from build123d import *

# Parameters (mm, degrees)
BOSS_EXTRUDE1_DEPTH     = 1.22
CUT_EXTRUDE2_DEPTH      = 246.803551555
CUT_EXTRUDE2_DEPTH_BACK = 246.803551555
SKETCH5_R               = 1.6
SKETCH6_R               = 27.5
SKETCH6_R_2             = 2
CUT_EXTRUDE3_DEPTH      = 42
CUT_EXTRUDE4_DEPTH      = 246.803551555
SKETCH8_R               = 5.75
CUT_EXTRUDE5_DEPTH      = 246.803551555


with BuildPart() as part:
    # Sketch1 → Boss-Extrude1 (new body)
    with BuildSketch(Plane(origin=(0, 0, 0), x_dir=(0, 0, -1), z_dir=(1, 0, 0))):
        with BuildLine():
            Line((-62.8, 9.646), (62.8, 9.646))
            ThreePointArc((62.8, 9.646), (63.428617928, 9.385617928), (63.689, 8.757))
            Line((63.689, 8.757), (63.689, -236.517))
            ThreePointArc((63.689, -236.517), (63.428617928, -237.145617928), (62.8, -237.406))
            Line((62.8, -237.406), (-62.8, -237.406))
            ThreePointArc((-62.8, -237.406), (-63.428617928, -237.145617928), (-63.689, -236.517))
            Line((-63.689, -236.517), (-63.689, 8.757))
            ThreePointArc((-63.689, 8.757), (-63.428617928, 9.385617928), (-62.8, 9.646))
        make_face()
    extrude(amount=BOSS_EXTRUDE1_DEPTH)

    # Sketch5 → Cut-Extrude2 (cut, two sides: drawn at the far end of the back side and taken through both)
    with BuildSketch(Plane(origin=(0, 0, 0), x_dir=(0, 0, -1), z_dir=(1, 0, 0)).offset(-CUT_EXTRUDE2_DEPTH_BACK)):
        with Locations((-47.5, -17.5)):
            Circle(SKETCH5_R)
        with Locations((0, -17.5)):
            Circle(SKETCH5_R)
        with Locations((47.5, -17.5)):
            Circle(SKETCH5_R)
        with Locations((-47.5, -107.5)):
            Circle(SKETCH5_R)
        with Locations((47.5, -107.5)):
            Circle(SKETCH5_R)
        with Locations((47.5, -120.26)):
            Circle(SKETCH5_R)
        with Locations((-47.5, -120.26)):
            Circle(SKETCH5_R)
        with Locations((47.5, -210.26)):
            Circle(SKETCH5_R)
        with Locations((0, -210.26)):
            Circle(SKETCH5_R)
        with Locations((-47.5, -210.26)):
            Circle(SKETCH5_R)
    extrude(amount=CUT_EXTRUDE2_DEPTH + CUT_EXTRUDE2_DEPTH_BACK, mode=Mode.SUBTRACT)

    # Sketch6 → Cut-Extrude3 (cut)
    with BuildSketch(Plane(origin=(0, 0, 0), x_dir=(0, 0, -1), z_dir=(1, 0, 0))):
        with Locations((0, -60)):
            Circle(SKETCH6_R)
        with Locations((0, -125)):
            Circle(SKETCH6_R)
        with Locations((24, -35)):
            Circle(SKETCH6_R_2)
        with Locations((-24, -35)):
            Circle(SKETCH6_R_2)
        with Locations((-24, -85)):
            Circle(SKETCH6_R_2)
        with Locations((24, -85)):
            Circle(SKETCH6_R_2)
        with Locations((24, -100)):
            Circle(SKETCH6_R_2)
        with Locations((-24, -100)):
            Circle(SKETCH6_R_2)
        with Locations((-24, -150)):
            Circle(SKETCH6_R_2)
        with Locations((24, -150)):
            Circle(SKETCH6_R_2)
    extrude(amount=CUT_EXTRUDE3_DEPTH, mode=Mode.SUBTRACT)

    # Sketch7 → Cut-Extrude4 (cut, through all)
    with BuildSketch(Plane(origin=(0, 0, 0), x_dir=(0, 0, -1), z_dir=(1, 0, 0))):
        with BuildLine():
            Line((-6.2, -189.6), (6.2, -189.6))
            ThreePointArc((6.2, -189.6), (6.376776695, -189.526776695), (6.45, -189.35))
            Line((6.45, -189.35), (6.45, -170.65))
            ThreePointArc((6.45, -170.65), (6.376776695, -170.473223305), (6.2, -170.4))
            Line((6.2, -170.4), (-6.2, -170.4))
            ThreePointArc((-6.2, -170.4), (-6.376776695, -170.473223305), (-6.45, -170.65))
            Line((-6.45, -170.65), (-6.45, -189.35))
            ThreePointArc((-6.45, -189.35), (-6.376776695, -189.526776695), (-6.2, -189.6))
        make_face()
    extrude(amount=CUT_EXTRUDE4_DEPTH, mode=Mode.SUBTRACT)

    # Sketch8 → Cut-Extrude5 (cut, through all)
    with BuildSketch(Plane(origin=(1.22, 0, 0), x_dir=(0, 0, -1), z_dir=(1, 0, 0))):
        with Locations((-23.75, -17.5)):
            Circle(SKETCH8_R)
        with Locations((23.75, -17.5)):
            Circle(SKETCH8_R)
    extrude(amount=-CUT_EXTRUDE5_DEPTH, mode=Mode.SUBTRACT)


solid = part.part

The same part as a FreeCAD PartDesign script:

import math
import FreeCAD as App
import Part
import Sketcher

V = App.Vector
Q = App.Units.Quantity

doc = App.newDocument("Part")
params = doc.addObject("Spreadsheet::Sheet", "Params")
for row, (alias, value) in enumerate([
    ("sketch1_height", "125.6 mm"),
    ("pad1_length", "1.22 mm"),
    ("sketch2_diameter", "3.2 mm"),
    ("sketch3_diameter", "55 mm"),
    ("sketch3_diameter2", "4 mm"),
    ("pocket2_length", "42 mm"),
    ("sketch4_radius", "0.25 mm"),
    ("sketch4_width", "18.7 mm"),
    ("sketch4_height", "12.4 mm"),
    ("sketch5_diameter", "11.5 mm"),
], start=1):
    params.set(f"A{row}", alias)
    params.set(f"B{row}", "=" + value)
    params.setAlias(f"B{row}", alias)

body = doc.addObject("PartDesign::Body", "Body")

# Sketch on YZ plane
sketch1 = doc.addObject("Sketcher::SketchObject", "Sketch")
body.addObject(sketch1)
sketch1.AttachmentSupport = (doc.YZ_Plane, [""])
sketch1.MapMode = "FlatFace"
sketch1.addGeometry(Part.LineSegment(V(9.646, -62.8, 0), V(9.646, 62.8, 0)), False)
sketch1.addGeometry(Part.ArcOfCircle(Part.Circle(V(8.757, 62.8, 0), V(0, 0, 1), 0.889), math.radians(0), math.radians(90)), False)
sketch1.addGeometry(Part.LineSegment(V(8.757, 63.689, 0), V(-236.517, 63.689, 0)), False)
sketch1.addGeometry(Part.ArcOfCircle(Part.Circle(V(-236.517, 62.8, 0), V(0, 0, 1), 0.889), math.radians(90), math.radians(180)), False)
sketch1.addGeometry(Part.LineSegment(V(-237.406, 62.8, 0), V(-237.406, -62.8, 0)), False)
sketch1.addGeometry(Part.ArcOfCircle(Part.Circle(V(-236.517, -62.8, 0), V(0, 0, 1), 0.889), math.radians(-180), math.radians(-90)), False)
sketch1.addGeometry(Part.LineSegment(V(-236.517, -63.689, 0), V(8.757, -63.689, 0)), False)
sketch1.addGeometry(Part.ArcOfCircle(Part.Circle(V(8.757, -62.8, 0), V(0, 0, 1), 0.889), math.radians(-90), math.radians(0)), False)
sketch1.addConstraint(Sketcher.Constraint("Tangent", 0, 2, 1, 1))
sketch1.addConstraint(Sketcher.Constraint("Tangent", 1, 2, 2, 1))
sketch1.addConstraint(Sketcher.Constraint("Tangent", 2, 2, 3, 1))
sketch1.addConstraint(Sketcher.Constraint("Tangent", 3, 2, 4, 1))
sketch1.addConstraint(Sketcher.Constraint("Tangent", 4, 2, 5, 1))
sketch1.addConstraint(Sketcher.Constraint("Tangent", 5, 2, 6, 1))
sketch1.addConstraint(Sketcher.Constraint("Tangent", 6, 2, 7, 1))
sketch1.addConstraint(Sketcher.Constraint("Tangent", 7, 2, 0, 1))
sketch1.addConstraint(Sketcher.Constraint("Vertical", 0))
sketch1.addConstraint(Sketcher.Constraint("Horizontal", 2))
sketch1.addConstraint(Sketcher.Constraint("Vertical", 4))
sketch1.addConstraint(Sketcher.Constraint("Horizontal", 6))
sketch1.addConstraint(Sketcher.Constraint("Equal", 1, 3))
sketch1.addConstraint(Sketcher.Constraint("Equal", 3, 5))
sketch1.addConstraint(Sketcher.Constraint("Equal", 5, 7))
sketch1.addConstraint(Sketcher.Constraint("DistanceY", 0, 1, 0, 2, Q("125.6 mm")))
sketch1.addConstraint(Sketcher.Constraint("Radius", 1, Q("0.889 mm")))
sketch1.addConstraint(Sketcher.Constraint("DistanceY", -1, 1, 1, 3, Q("62.8 mm")))
sketch1.addConstraint(Sketcher.Constraint("DistanceX", 2, 2, 2, 1, Q("245.274 mm")))
sketch1.addConstraint(Sketcher.Constraint("DistanceX", -1, 1, 1, 3, Q("8.757 mm")))
sketch1.setExpression("Constraints[15]", "Params.sketch1_height")
pad1 = doc.addObject("PartDesign::Pad", "Pad")
body.addObject(pad1)
pad1.Profile = sketch1
pad1.setExpression("Length", "Params.pad1_length")

# Sketch on YZ plane
sketch2 = doc.addObject("Sketcher::SketchObject", "Sketch001")
body.addObject(sketch2)
sketch2.AttachmentSupport = (doc.YZ_Plane, [""])
sketch2.MapMode = "FlatFace"
sketch2.addGeometry(Part.Circle(V(-17.5, 47.5, 0), V(0, 0, 1), 1.6), False)
sketch2.addGeometry(Part.Circle(V(-17.5, 0, 0), V(0, 0, 1), 1.6), False)
sketch2.addGeometry(Part.Circle(V(-17.5, -47.5, 0), V(0, 0, 1), 1.6), False)
sketch2.addGeometry(Part.Circle(V(-107.5, 47.5, 0), V(0, 0, 1), 1.6), False)
sketch2.addGeometry(Part.Circle(V(-107.5, -47.5, 0), V(0, 0, 1), 1.6), False)
sketch2.addGeometry(Part.Circle(V(-120.26, -47.5, 0), V(0, 0, 1), 1.6), False)
sketch2.addGeometry(Part.Circle(V(-120.26, 47.5, 0), V(0, 0, 1), 1.6), False)
sketch2.addGeometry(Part.Circle(V(-210.26, -47.5, 0), V(0, 0, 1), 1.6), False)
sketch2.addGeometry(Part.Circle(V(-210.26, 0, 0), V(0, 0, 1), 1.6), False)
sketch2.addGeometry(Part.Circle(V(-210.26, 47.5, 0), V(0, 0, 1), 1.6), False)
sketch2.addConstraint(Sketcher.Constraint("Equal", 0, 1))
sketch2.addConstraint(Sketcher.Constraint("Equal", 1, 2))
sketch2.addConstraint(Sketcher.Constraint("Equal", 2, 3))
sketch2.addConstraint(Sketcher.Constraint("Equal", 3, 4))
sketch2.addConstraint(Sketcher.Constraint("Equal", 4, 5))
sketch2.addConstraint(Sketcher.Constraint("Equal", 5, 6))
sketch2.addConstraint(Sketcher.Constraint("Equal", 6, 7))
sketch2.addConstraint(Sketcher.Constraint("Equal", 7, 8))
sketch2.addConstraint(Sketcher.Constraint("Equal", 8, 9))
sketch2.addConstraint(Sketcher.Constraint("Symmetric", 0, 3, 2, 3, -1))
sketch2.addConstraint(Sketcher.Constraint("Symmetric", 3, 3, 4, 3, -1))
sketch2.addConstraint(Sketcher.Constraint("Symmetric", 5, 3, 6, 3, -1))
sketch2.addConstraint(Sketcher.Constraint("Symmetric", 7, 3, 9, 3, -1))
sketch2.addConstraint(Sketcher.Constraint("PointOnObject", 1, 3, -1))
sketch2.addConstraint(Sketcher.Constraint("PointOnObject", 8, 3, -1))
sketch2.addConstraint(Sketcher.Constraint("Horizontal", 0, 3, 3, 3))
sketch2.addConstraint(Sketcher.Constraint("Horizontal", 4, 3, 5, 3))
sketch2.addConstraint(Sketcher.Constraint("Horizontal", 5, 3, 7, 3))
sketch2.addConstraint(Sketcher.Constraint("Vertical", 0, 3, 1, 3))
sketch2.addConstraint(Sketcher.Constraint("Vertical", 7, 3, 8, 3))
sketch2.addConstraint(Sketcher.Constraint("Diameter", 0, Q("3.2 mm")))
sketch2.addConstraint(Sketcher.Constraint("DistanceY", 2, 3, 0, 3, Q("95 mm")))
sketch2.addConstraint(Sketcher.Constraint("DistanceX", 3, 3, 0, 3, Q("90 mm")))
sketch2.addConstraint(Sketcher.Constraint("DistanceX", 7, 3, 5, 3, Q("90 mm")))
sketch2.addConstraint(Sketcher.Constraint("DistanceX", 0, 3, -1, 1, Q("17.5 mm")))
sketch2.addConstraint(Sketcher.Constraint("DistanceX", 5, 3, -1, 1, Q("120.26 mm")))
sketch2.setExpression("Constraints[20]", "Params.sketch2_diameter")
pocket1 = doc.addObject("PartDesign::Pocket", "Pocket")
body.addObject(pocket1)
pocket1.Profile = sketch2
pocket1.Type = "ThroughAll"
pocket1.Midplane = True

# Sketch on YZ plane
sketch3 = doc.addObject("Sketcher::SketchObject", "Sketch002")
body.addObject(sketch3)
sketch3.AttachmentSupport = (doc.YZ_Plane, [""])
sketch3.MapMode = "FlatFace"
sketch3.addGeometry(Part.Circle(V(-60, 0, 0), V(0, 0, 1), 27.5), False)
sketch3.addGeometry(Part.Circle(V(-125, 0, 0), V(0, 0, 1), 27.5), False)
sketch3.addGeometry(Part.Circle(V(-35, -24, 0), V(0, 0, 1), 2), False)
sketch3.addGeometry(Part.Circle(V(-35, 24, 0), V(0, 0, 1), 2), False)
sketch3.addGeometry(Part.Circle(V(-85, 24, 0), V(0, 0, 1), 2), False)
sketch3.addGeometry(Part.Circle(V(-85, -24, 0), V(0, 0, 1), 2), False)
sketch3.addGeometry(Part.Circle(V(-100, -24, 0), V(0, 0, 1), 2), False)
sketch3.addGeometry(Part.Circle(V(-100, 24, 0), V(0, 0, 1), 2), False)
sketch3.addGeometry(Part.Circle(V(-150, 24, 0), V(0, 0, 1), 2), False)
sketch3.addGeometry(Part.Circle(V(-150, -24, 0), V(0, 0, 1), 2), False)
sketch3.addConstraint(Sketcher.Constraint("Equal", 0, 1))
sketch3.addConstraint(Sketcher.Constraint("Equal", 2, 3))
sketch3.addConstraint(Sketcher.Constraint("Equal", 3, 4))
sketch3.addConstraint(Sketcher.Constraint("Equal", 4, 5))
sketch3.addConstraint(Sketcher.Constraint("Equal", 5, 6))
sketch3.addConstraint(Sketcher.Constraint("Equal", 6, 7))
sketch3.addConstraint(Sketcher.Constraint("Equal", 7, 8))
sketch3.addConstraint(Sketcher.Constraint("Equal", 8, 9))
sketch3.addConstraint(Sketcher.Constraint("Symmetric", 2, 3, 3, 3, -1))
sketch3.addConstraint(Sketcher.Constraint("Symmetric", 4, 3, 5, 3, -1))
sketch3.addConstraint(Sketcher.Constraint("Symmetric", 6, 3, 7, 3, -1))
sketch3.addConstraint(Sketcher.Constraint("Symmetric", 8, 3, 9, 3, -1))
sketch3.addConstraint(Sketcher.Constraint("PointOnObject", 0, 3, -1))
sketch3.addConstraint(Sketcher.Constraint("PointOnObject", 1, 3, -1))
sketch3.addConstraint(Sketcher.Constraint("Horizontal", 3, 3, 4, 3))
sketch3.addConstraint(Sketcher.Constraint("Horizontal", 5, 3, 6, 3))
sketch3.addConstraint(Sketcher.Constraint("Horizontal", 7, 3, 8, 3))
sketch3.addConstraint(Sketcher.Constraint("Diameter", 0, Q("55 mm")))
sketch3.addConstraint(Sketcher.Constraint("Diameter", 2, Q("4 mm")))
sketch3.addConstraint(Sketcher.Constraint("DistanceX", 0, 3, -1, 1, Q("60 mm")))
sketch3.addConstraint(Sketcher.Constraint("DistanceX", 1, 3, -1, 1, Q("125 mm")))
sketch3.addConstraint(Sketcher.Constraint("DistanceX", 2, 3, -1, 1, Q("35 mm")))
sketch3.addConstraint(Sketcher.Constraint("DistanceY", 2, 3, -1, 1, Q("24 mm")))
sketch3.addConstraint(Sketcher.Constraint("DistanceX", 4, 3, -1, 1, Q("85 mm")))
sketch3.addConstraint(Sketcher.Constraint("DistanceX", 6, 3, -1, 1, Q("100 mm")))
sketch3.addConstraint(Sketcher.Constraint("DistanceX", 8, 3, -1, 1, Q("150 mm")))
sketch3.setExpression("Constraints[17]", "Params.sketch3_diameter")
sketch3.setExpression("Constraints[18]", "Params.sketch3_diameter2")
pocket2 = doc.addObject("PartDesign::Pocket", "Pocket001")
body.addObject(pocket2)
pocket2.Profile = sketch3
pocket2.setExpression("Length", "Params.pocket2_length")
pocket2.Reversed = True

# Sketch on YZ plane
sketch4 = doc.addObject("Sketcher::SketchObject", "Sketch003")
body.addObject(sketch4)
sketch4.AttachmentSupport = (doc.YZ_Plane, [""])
sketch4.MapMode = "FlatFace"
sketch4.addGeometry(Part.LineSegment(V(-189.6, 6.2, 0), V(-189.6, -6.2, 0)), False)
sketch4.addGeometry(Part.ArcOfCircle(Part.Circle(V(-189.35, -6.2, 0), V(0, 0, 1), 0.25), math.radians(-180), math.radians(-90)), False)
sketch4.addGeometry(Part.LineSegment(V(-189.35, -6.45, 0), V(-170.65, -6.45, 0)), False)
sketch4.addGeometry(Part.ArcOfCircle(Part.Circle(V(-170.65, -6.2, 0), V(0, 0, 1), 0.25), math.radians(-90), math.radians(0)), False)
sketch4.addGeometry(Part.LineSegment(V(-170.4, -6.2, 0), V(-170.4, 6.2, 0)), False)
sketch4.addGeometry(Part.ArcOfCircle(Part.Circle(V(-170.65, 6.2, 0), V(0, 0, 1), 0.25), math.radians(0), math.radians(90)), False)
sketch4.addGeometry(Part.LineSegment(V(-170.65, 6.45, 0), V(-189.35, 6.45, 0)), False)
sketch4.addGeometry(Part.ArcOfCircle(Part.Circle(V(-189.35, 6.2, 0), V(0, 0, 1), 0.25), math.radians(90), math.radians(180)), False)
sketch4.addConstraint(Sketcher.Constraint("Tangent", 0, 2, 1, 1))
sketch4.addConstraint(Sketcher.Constraint("Tangent", 1, 2, 2, 1))
sketch4.addConstraint(Sketcher.Constraint("Tangent", 2, 2, 3, 1))
sketch4.addConstraint(Sketcher.Constraint("Tangent", 3, 2, 4, 1))
sketch4.addConstraint(Sketcher.Constraint("Tangent", 4, 2, 5, 1))
sketch4.addConstraint(Sketcher.Constraint("Tangent", 5, 2, 6, 1))
sketch4.addConstraint(Sketcher.Constraint("Tangent", 6, 2, 7, 1))
sketch4.addConstraint(Sketcher.Constraint("Tangent", 7, 2, 0, 1))
sketch4.addConstraint(Sketcher.Constraint("Vertical", 0))
sketch4.addConstraint(Sketcher.Constraint("Horizontal", 2))
sketch4.addConstraint(Sketcher.Constraint("Vertical", 4))
sketch4.addConstraint(Sketcher.Constraint("Horizontal", 6))
sketch4.addConstraint(Sketcher.Constraint("Equal", 1, 3))
sketch4.addConstraint(Sketcher.Constraint("Equal", 3, 5))
sketch4.addConstraint(Sketcher.Constraint("Equal", 5, 7))
sketch4.addConstraint(Sketcher.Constraint("Radius", 1, Q("0.25 mm")))
sketch4.addConstraint(Sketcher.Constraint("DistanceX", 2, 1, 2, 2, Q("18.7 mm")))
sketch4.addConstraint(Sketcher.Constraint("DistanceY", 0, 2, 0, 1, Q("12.4 mm")))
sketch4.addConstraint(Sketcher.Constraint("DistanceY", 1, 3, -1, 1, Q("6.2 mm")))
sketch4.addConstraint(Sketcher.Constraint("DistanceX", 0, 2, -1, 1, Q("189.6 mm")))
sketch4.setExpression("Constraints[15]", "Params.sketch4_radius")
sketch4.setExpression("Constraints[16]", "Params.sketch4_width")
sketch4.setExpression("Constraints[17]", "Params.sketch4_height")
pocket3 = doc.addObject("PartDesign::Pocket", "Pocket002")
body.addObject(pocket3)
pocket3.Profile = sketch4
pocket3.Type = "ThroughAll"
pocket3.Reversed = True

# Sketch on YZ plane
sketch5 = doc.addObject("Sketcher::SketchObject", "Sketch004")
body.addObject(sketch5)
sketch5.AttachmentSupport = (doc.YZ_Plane, [""])
sketch5.MapMode = "FlatFace"
sketch5.AttachmentOffset = App.Placement(V(0, 0, 1.22), App.Rotation())
sketch5.addGeometry(Part.Circle(V(-17.5, 23.75, 0), V(0, 0, 1), 5.75), False)
sketch5.addGeometry(Part.Circle(V(-17.5, -23.75, 0), V(0, 0, 1), 5.75), False)
sketch5.addConstraint(Sketcher.Constraint("Equal", 0, 1))
sketch5.addConstraint(Sketcher.Constraint("Symmetric", 0, 3, 1, 3, -1))
sketch5.addConstraint(Sketcher.Constraint("Diameter", 0, Q("11.5 mm")))
sketch5.addConstraint(Sketcher.Constraint("DistanceX", 0, 3, -1, 1, Q("17.5 mm")))
sketch5.addConstraint(Sketcher.Constraint("DistanceY", 1, 3, 0, 3, Q("47.5 mm")))
sketch5.setExpression("Constraints[2]", "Params.sketch5_diameter")
pocket4 = doc.addObject("PartDesign::Pocket", "Pocket003")
body.addObject(pocket4)
pocket4.Profile = sketch5
pocket4.Type = "ThroughAll"

doc.recompute()
